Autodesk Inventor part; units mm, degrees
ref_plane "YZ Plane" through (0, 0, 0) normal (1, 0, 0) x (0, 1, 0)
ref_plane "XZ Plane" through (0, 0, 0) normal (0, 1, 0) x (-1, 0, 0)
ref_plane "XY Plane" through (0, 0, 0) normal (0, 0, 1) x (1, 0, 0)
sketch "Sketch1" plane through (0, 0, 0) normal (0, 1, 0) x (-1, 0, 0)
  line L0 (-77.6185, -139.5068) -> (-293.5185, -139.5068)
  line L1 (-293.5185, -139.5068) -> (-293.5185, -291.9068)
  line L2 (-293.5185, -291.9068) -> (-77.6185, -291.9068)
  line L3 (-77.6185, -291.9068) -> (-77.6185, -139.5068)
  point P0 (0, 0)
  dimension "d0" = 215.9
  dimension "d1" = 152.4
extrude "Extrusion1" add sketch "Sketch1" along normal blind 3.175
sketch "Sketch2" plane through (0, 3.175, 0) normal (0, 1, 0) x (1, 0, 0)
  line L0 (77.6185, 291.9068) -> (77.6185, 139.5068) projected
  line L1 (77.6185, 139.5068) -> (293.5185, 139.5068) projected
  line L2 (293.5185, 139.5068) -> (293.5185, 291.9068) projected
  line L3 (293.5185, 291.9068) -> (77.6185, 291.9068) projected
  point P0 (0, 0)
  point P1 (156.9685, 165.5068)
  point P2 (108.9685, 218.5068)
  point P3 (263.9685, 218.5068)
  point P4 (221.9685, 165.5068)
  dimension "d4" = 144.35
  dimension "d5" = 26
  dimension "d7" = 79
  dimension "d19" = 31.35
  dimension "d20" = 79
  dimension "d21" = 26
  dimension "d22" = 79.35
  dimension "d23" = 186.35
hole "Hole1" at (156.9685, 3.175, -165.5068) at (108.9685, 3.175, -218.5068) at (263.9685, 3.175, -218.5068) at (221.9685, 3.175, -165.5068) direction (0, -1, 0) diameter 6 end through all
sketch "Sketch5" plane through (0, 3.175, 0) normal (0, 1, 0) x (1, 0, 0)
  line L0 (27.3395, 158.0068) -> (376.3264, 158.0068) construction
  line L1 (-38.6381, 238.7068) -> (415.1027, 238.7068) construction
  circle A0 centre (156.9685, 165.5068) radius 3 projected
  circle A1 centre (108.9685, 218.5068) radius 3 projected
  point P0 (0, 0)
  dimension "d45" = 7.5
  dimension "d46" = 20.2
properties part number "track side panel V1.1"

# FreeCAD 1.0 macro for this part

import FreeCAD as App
import Part
import Sketcher
Q = App.Units.Quantity


def add_polygon(sketch, points):
    """Adds a closed chain of lines whose ends are joined by coincident constraints."""
    first, n = sketch.GeometryCount, len(points)
    for a, b in zip(points, points[1:] + points[:1]):
        sketch.addGeometry(Part.LineSegment(App.Vector(*a, 0), App.Vector(*b, 0)), False)
    for i in range(n):
        sketch.addConstraint(Sketcher.Constraint("Coincident", first + i, 2, first + (i + 1) % n, 1))

doc = App.newDocument("Part")
body = doc.addObject("PartDesign::Body", "Body")

sketch1 = body.newObject("Sketcher::SketchObject", "Sketch")
sketch1.AttachmentSupport = (doc.getObject("XZ_Plane"), [""])
sketch1.MapMode = "FlatFace"
add_polygon(sketch1, [(78, -292), (78, -140), (294, -140), (294, -292)])
sketch1.addConstraint([
    Sketcher.Constraint("Vertical", 0),
    Sketcher.Constraint("Horizontal", 1),
    Sketcher.Constraint("Vertical", 2),
    Sketcher.Constraint("Horizontal", 3),
    Sketcher.Constraint("DistanceY", 0, 1, 0, 2, Q("6 in")),
    Sketcher.Constraint("DistanceX", 1, 1, 1, 2, Q("8.5 in")),
    Sketcher.Constraint("DistanceY", 0, 2, -1, 1, Q("5.4924 in")),
    Sketcher.Constraint("DistanceX", -1, 1, 0, 2, Q("77.6185 mm")),
])
pad1 = body.newObject("PartDesign::Pad", "Pad")
pad1.Profile = sketch1
pad1.Length = Q("0.125 in")
pad1.Reversed = True

sketch2 = body.newObject("Sketcher::SketchObject", "Sketch001")
sketch2.AttachmentSupport = (doc.getObject("XZ_Plane"), [""])
sketch2.MapMode = "FlatFace"
sketch2.AttachmentOffset = App.Placement(App.Vector(0, 0, -0.125 * 25.4), App.Rotation())
sketch2.addGeometry([
    Part.Circle(App.Vector(157, -165.5, 0), App.Vector(0, 0, 1), 3),
    Part.Circle(App.Vector(109, -218.5, 0), App.Vector(0, 0, 1), 3),
    Part.Circle(App.Vector(264, -218.5, 0), App.Vector(0, 0, 1), 3),
    Part.Circle(App.Vector(222, -165.5, 0), App.Vector(0, 0, 1), 3),
], False)
sketch2.addConstraint([
    Sketcher.Constraint("Equal", 0, 1),
    Sketcher.Constraint("Equal", 1, 2),
    Sketcher.Constraint("Equal", 2, 3),
    Sketcher.Constraint("Horizontal", 1, 3, 2, 3),
    Sketcher.Constraint("Horizontal", 0, 3, 3, 3),
    Sketcher.Constraint("Diameter", 0, Q("6 mm")),
    Sketcher.Constraint("DistanceX", -1, 1, 1, 3, Q("4.2901 in")),
    Sketcher.Constraint("DistanceX", 0, 3, 2, 3, Q("4.2126 in")),
    Sketcher.Constraint("DistanceX", -1, 1, 0, 3, Q("156.9685 mm")),
    Sketcher.Constraint("DistanceY", 0, 3, -1, 1, Q("165.5068 mm")),
    Sketcher.Constraint("DistanceY", 1, 3, -1, 1, Q("218.5068 mm")),
    Sketcher.Constraint("DistanceX", -1, 1, 3, 3, Q("221.9685 mm")),
])
doc.recompute()
hole = body.newObject("PartDesign::Hole", "Hole")
hole.Profile = sketch2
hole.ThreadType = "None"
hole.Diameter = 6
hole.DepthType = "ThroughAll"
hole.Reversed = True

doc.recompute()
